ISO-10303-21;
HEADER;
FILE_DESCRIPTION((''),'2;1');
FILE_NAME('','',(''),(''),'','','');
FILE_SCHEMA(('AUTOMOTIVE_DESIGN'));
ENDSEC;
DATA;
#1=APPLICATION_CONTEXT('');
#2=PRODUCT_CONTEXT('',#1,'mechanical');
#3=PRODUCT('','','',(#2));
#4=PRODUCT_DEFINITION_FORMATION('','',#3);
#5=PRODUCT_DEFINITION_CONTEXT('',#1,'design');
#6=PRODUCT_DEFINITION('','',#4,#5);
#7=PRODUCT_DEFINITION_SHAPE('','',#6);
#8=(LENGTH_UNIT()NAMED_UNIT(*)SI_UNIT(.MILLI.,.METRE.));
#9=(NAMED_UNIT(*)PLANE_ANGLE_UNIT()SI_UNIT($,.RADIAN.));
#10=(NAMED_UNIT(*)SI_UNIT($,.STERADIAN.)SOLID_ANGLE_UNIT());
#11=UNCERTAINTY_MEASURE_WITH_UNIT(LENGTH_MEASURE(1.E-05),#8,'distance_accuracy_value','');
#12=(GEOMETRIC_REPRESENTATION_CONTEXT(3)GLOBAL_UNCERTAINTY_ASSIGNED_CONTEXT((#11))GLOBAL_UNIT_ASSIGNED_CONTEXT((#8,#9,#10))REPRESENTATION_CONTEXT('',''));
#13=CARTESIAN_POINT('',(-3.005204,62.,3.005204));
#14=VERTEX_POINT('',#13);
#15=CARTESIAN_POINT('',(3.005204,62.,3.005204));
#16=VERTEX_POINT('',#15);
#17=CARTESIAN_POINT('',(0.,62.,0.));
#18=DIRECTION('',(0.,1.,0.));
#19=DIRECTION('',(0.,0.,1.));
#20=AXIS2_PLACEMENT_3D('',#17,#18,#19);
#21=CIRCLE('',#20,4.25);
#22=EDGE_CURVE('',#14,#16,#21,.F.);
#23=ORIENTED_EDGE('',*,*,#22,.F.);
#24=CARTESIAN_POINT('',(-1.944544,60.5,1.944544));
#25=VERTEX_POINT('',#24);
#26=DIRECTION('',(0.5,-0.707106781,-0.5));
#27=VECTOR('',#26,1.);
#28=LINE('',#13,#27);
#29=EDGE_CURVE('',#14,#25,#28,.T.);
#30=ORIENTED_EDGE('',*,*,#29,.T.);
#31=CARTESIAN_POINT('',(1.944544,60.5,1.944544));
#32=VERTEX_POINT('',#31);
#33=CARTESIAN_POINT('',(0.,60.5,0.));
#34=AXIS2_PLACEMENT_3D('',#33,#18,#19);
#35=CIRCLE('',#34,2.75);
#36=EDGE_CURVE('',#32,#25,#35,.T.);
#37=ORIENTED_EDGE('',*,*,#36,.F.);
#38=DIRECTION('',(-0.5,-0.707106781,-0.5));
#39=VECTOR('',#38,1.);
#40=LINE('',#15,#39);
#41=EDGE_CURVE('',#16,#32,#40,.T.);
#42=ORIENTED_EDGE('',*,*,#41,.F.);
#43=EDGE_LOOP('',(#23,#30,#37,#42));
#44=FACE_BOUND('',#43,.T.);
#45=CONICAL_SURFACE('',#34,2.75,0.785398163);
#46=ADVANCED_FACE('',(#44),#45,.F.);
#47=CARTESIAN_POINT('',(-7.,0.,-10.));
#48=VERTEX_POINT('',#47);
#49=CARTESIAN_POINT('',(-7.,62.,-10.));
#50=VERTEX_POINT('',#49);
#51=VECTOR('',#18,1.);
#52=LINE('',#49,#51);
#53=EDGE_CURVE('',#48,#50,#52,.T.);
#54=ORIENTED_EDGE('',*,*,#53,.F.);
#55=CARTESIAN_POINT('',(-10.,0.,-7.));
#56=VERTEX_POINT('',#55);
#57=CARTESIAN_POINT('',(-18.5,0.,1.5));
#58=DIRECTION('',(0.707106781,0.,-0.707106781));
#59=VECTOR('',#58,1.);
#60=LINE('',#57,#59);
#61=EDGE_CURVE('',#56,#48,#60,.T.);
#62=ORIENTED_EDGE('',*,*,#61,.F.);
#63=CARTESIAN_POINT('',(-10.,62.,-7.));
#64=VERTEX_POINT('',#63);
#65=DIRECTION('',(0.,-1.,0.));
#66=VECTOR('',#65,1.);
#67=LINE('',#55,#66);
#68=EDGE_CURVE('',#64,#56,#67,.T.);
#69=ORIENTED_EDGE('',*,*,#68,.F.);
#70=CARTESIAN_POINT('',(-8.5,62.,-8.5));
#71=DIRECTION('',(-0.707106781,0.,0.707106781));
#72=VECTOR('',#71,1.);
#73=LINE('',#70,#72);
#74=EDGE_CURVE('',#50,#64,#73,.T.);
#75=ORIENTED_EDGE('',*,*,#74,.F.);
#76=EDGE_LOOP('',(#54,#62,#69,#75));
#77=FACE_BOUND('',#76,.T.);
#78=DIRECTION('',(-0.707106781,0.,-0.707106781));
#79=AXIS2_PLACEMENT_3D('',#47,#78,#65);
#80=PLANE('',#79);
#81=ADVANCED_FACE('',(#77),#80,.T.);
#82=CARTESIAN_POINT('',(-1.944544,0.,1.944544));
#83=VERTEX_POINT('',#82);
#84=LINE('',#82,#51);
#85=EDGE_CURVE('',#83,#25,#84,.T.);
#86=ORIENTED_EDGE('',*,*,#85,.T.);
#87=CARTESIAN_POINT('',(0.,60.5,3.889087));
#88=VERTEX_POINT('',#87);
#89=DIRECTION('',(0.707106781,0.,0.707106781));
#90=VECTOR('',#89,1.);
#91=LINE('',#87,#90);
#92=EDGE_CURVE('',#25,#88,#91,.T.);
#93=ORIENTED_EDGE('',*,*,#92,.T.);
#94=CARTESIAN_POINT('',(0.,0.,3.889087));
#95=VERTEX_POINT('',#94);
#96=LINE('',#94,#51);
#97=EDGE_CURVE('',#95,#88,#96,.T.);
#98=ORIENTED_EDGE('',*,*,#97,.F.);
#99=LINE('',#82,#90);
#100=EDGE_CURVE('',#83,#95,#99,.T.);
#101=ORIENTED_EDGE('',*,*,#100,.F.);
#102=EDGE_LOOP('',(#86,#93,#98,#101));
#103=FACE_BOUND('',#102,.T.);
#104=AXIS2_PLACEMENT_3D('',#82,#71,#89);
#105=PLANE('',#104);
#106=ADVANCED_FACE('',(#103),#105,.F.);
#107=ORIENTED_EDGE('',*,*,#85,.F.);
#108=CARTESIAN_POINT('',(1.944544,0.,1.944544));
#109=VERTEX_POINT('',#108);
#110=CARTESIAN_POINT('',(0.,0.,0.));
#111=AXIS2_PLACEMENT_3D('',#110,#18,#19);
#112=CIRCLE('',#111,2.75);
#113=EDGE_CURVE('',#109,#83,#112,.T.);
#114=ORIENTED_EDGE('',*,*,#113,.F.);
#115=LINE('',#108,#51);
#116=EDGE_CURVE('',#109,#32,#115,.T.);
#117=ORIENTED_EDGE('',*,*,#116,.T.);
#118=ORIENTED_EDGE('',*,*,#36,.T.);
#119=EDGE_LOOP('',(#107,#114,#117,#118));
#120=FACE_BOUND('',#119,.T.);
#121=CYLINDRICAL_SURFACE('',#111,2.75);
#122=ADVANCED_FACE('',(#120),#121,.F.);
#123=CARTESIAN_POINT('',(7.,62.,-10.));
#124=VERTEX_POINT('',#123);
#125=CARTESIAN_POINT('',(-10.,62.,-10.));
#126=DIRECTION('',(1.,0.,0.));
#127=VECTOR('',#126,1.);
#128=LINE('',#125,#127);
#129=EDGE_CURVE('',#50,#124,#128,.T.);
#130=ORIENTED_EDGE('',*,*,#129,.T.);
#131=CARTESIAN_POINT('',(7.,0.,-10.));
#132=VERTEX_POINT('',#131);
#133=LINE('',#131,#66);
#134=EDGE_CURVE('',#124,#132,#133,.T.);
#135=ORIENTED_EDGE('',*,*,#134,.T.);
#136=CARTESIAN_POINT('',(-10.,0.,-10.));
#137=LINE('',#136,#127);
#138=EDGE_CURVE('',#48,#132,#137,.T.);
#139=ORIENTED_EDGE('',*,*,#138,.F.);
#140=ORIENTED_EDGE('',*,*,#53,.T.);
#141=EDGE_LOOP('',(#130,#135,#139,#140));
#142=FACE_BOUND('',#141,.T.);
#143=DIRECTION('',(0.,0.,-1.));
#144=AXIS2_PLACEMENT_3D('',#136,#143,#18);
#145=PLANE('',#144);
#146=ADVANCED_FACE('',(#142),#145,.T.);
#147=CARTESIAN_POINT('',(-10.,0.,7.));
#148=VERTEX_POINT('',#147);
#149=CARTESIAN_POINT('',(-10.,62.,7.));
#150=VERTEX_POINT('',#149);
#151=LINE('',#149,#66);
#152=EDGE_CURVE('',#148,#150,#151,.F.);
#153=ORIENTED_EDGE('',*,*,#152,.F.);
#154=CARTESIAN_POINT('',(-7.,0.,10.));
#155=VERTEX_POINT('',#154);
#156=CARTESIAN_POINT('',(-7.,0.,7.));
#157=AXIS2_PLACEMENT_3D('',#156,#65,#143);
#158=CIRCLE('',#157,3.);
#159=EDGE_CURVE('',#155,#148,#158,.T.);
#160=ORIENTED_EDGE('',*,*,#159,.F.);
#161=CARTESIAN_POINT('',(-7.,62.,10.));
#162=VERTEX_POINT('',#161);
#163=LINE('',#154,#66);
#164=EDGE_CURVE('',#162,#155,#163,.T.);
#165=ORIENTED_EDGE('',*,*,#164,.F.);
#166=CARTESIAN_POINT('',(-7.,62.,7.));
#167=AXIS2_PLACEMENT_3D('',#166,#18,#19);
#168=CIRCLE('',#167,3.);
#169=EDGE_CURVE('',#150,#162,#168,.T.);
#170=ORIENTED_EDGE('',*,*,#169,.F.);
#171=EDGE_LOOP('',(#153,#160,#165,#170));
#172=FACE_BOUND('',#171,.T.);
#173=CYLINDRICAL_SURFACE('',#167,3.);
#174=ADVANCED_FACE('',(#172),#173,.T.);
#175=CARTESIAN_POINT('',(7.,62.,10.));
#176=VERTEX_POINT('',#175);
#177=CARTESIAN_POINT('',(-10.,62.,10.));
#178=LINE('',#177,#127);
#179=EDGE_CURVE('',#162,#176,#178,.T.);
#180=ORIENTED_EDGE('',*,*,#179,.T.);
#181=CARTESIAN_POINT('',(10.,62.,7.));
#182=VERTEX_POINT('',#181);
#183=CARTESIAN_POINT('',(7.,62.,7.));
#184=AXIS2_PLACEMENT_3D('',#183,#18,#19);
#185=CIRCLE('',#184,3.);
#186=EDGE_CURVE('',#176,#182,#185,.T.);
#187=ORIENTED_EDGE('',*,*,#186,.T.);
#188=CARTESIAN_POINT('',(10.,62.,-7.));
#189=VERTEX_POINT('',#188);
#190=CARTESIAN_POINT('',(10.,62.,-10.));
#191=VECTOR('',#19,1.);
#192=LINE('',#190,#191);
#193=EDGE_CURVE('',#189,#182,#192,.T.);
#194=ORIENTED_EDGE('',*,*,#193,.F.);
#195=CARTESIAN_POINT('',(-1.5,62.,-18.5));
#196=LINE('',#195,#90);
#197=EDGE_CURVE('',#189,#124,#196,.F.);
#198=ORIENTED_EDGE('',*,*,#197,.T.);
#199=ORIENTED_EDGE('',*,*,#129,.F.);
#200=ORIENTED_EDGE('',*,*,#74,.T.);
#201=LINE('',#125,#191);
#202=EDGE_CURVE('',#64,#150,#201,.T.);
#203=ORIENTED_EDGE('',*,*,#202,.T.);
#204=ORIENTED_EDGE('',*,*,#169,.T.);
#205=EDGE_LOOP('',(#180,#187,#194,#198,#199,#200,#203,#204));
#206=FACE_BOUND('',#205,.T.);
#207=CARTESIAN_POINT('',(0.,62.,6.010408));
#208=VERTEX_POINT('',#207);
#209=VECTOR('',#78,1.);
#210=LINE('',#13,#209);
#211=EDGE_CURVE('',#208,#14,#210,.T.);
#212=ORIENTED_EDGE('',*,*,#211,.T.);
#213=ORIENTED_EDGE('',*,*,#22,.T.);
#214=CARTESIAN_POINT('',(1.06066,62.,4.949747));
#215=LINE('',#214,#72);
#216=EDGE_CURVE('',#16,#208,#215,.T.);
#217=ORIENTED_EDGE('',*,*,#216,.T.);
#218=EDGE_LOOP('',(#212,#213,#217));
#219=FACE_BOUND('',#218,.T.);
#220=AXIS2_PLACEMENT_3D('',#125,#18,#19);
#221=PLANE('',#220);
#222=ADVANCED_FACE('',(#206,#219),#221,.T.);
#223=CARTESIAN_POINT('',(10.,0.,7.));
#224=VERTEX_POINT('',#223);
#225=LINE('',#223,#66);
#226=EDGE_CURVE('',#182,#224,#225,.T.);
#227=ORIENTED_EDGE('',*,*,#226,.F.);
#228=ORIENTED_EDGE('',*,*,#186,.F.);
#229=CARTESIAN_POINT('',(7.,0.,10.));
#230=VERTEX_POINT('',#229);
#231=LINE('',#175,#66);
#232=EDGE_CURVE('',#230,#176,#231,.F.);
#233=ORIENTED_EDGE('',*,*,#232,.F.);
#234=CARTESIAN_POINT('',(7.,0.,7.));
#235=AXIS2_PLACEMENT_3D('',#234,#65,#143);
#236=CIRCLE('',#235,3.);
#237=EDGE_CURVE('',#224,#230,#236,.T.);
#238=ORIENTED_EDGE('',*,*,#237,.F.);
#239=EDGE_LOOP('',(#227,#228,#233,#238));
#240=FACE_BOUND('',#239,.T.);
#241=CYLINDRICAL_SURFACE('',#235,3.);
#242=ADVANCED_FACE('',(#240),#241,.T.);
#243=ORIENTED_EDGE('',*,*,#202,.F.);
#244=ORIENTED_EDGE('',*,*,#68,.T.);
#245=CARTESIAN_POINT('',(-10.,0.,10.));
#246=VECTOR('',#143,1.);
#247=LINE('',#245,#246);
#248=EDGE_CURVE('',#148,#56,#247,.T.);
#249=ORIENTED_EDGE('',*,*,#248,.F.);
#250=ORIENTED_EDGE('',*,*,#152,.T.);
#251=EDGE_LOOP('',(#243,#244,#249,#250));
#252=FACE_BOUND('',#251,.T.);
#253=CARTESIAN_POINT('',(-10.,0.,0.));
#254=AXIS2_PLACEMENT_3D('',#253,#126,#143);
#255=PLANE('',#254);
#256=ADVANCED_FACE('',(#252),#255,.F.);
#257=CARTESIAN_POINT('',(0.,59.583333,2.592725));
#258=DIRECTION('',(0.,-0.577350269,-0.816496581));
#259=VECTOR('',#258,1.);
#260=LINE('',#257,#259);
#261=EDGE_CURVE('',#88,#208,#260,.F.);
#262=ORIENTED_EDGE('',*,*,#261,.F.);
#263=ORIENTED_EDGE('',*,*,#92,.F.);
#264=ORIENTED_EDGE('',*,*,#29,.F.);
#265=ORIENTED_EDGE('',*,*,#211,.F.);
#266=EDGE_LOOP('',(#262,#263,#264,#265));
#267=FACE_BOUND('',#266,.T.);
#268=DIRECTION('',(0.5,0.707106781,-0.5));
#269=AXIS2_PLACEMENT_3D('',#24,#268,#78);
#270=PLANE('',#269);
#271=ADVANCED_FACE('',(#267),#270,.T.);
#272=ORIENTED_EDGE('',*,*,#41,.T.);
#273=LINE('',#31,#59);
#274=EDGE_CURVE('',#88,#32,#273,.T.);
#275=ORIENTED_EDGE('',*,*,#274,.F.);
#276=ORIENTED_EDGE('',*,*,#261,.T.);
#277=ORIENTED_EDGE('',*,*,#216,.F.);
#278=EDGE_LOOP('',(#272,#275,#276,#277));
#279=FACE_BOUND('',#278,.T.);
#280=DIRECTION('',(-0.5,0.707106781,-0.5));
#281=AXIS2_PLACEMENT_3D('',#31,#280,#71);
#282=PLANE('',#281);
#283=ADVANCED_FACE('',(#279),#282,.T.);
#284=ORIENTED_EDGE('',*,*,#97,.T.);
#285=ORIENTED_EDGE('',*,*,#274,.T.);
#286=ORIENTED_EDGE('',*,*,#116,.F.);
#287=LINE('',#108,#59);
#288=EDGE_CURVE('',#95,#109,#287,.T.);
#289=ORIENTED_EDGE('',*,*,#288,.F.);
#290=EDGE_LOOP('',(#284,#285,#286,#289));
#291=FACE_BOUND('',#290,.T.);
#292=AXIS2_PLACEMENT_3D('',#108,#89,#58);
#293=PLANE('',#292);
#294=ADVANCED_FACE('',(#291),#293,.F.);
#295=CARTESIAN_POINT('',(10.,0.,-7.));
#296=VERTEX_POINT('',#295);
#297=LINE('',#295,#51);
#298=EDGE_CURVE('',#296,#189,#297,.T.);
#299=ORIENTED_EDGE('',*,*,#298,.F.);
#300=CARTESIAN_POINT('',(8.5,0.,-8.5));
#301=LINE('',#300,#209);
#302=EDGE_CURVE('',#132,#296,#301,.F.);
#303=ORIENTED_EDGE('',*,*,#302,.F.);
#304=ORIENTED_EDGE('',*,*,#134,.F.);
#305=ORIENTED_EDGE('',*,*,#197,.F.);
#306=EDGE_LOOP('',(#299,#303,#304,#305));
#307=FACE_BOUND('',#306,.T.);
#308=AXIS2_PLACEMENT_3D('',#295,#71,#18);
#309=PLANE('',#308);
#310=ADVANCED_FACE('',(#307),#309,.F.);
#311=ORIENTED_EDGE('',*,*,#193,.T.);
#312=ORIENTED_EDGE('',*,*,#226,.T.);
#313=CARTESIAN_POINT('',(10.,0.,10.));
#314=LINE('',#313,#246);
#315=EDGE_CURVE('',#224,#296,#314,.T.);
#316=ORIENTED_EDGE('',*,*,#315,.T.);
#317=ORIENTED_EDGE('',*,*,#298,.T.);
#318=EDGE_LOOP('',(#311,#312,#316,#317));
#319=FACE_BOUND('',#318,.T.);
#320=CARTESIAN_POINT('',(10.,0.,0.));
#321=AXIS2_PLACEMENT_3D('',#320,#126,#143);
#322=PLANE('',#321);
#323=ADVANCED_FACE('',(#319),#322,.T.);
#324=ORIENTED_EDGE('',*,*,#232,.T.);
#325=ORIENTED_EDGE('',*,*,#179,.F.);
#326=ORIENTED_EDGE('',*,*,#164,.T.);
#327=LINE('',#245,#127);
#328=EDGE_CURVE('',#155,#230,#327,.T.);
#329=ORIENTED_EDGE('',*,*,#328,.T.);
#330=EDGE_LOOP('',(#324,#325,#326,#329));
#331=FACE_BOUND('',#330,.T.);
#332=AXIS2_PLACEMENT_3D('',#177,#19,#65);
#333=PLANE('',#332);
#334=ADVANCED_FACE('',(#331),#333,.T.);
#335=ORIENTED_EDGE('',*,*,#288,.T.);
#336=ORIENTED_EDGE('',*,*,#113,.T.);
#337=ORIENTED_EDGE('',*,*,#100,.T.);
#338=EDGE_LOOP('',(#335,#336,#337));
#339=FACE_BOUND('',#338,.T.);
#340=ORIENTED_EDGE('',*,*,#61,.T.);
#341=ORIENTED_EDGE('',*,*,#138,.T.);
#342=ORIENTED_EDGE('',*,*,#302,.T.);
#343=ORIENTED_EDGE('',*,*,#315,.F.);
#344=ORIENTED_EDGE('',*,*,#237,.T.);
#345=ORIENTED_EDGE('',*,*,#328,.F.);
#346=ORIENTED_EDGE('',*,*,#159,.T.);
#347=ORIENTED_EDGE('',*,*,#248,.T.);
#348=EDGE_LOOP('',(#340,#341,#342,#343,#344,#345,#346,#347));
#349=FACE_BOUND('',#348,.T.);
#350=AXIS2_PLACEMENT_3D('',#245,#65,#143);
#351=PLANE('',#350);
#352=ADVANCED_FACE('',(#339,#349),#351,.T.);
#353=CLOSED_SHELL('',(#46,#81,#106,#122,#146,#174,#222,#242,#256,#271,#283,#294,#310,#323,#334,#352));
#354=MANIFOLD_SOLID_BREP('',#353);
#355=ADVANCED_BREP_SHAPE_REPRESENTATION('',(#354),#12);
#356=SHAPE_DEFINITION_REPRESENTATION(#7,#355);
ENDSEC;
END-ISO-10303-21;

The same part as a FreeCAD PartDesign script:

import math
import FreeCAD as App
import Part
import Sketcher


def edges_at(feature, points):
    """Names of the edges that pass closest to the given points."""
    edges = feature.Shape.Edges
    near = lambda p: min(range(len(edges)), key=lambda i: edges[i].distToShape(Part.Vertex(*p))[0])
    return sorted({f"Edge{near(p) + 1}" for p in points})


def add_polygon(sketch, points):
    """Adds a closed chain of lines whose ends are joined by coincident constraints."""
    first, n = sketch.GeometryCount, len(points)
    for a, b in zip(points, points[1:] + points[:1]):
        sketch.addGeometry(Part.LineSegment(App.Vector(*a, 0), App.Vector(*b, 0)), False)
    for i in range(n):
        sketch.addConstraint(Sketcher.Constraint("Coincident", first + i, 2, first + (i + 1) % n, 1))

doc = App.newDocument("Part")
body = doc.addObject("PartDesign::Body", "Body")

sketch1 = body.newObject("Sketcher::SketchObject", "Sketch")
sketch1.AttachmentSupport = (doc.getObject("YZ_Plane"), [""])
sketch1.MapMode = "FlatFace"
add_polygon(sketch1, [(62, 10), (0, 10), (0, -10), (62, -10)])
sketch1.addConstraint([
    Sketcher.Constraint("Horizontal", 0),
    Sketcher.Constraint("Vertical", 1),
    Sketcher.Constraint("Horizontal", 2),
    Sketcher.Constraint("Vertical", 3),
    Sketcher.Constraint("Symmetric", 0, 2, 1, 2, -1, 1),
    Sketcher.Constraint("DistanceX", 0, 2, 0, 1, 62.0),
    Sketcher.Constraint("DistanceY", 1, 2, 1, 1, 20.0),
])
pad1 = body.newObject("PartDesign::Pad", "Pad")
pad1.Profile = sketch1
pad1.Type = "TwoLengths"
pad1.Length = 10
pad1.Length2 = 10
doc.recompute()

fillet = body.newObject("PartDesign::Fillet", "Fillet")
fillet.Base = (pad1, edges_at(pad1, [(10, 31, 10), (-10, 31, 10)]))
fillet.Radius = 3

sketch2 = body.newObject("Sketcher::SketchObject", "Sketch001")
sketch2.AttachmentSupport = (doc.getObject("XZ_Plane"), [""])
sketch2.MapMode = "FlatFace"
sketch2.AttachmentOffset = App.Placement(App.Vector(0, 0, -62), App.Rotation())
sketch2.addGeometry([
    Part.LineSegment(App.Vector(-1.9, 1.9, 0), App.Vector(0, 3.9, 0)),
    Part.LineSegment(App.Vector(0, 3.9, 0), App.Vector(1.9, 1.9, 0)),
    Part.ArcOfCircle(Part.Circle(App.Vector(0, 0, 0), App.Vector(0, 0, 1), 2.8), math.radians(135), math.radians(405)),
], False)
sketch2.addConstraint([
    Sketcher.Constraint("Coincident", 0, 2, 1, 1),
    Sketcher.Constraint("Tangent", 1, 2, 2, 2),
    Sketcher.Constraint("Tangent", 2, 1, 0, 1),
    Sketcher.Constraint("Coincident", 2, 3, -1, 1),
    Sketcher.Constraint("PointOnObject", 0, 2, -2),
    Sketcher.Constraint("Perpendicular", 0, 1),
    Sketcher.Constraint("Radius", 2, 2.75),
])
pocket1 = body.newObject("PartDesign::Pocket", "Pocket")
pocket1.Profile = sketch2
pocket1.Type = "ThroughAll"
pocket1.Reversed = True
doc.recompute()

chamfer = body.newObject("PartDesign::Chamfer", "Chamfer")
chamfer.Base = (pocket1, edges_at(pocket1, [(0, 62, -2.75), (-0.972, 62, 2.917), (0.972, 62, 2.917)]))
chamfer.Size = 1.5
doc.recompute()

chamfer2 = body.newObject("PartDesign::Chamfer", "Chamfer001")
chamfer2.Base = (chamfer, edges_at(chamfer, [(-10, 31, -10), (10, 31, -10)]))
chamfer2.Size = 3

doc.recompute()
